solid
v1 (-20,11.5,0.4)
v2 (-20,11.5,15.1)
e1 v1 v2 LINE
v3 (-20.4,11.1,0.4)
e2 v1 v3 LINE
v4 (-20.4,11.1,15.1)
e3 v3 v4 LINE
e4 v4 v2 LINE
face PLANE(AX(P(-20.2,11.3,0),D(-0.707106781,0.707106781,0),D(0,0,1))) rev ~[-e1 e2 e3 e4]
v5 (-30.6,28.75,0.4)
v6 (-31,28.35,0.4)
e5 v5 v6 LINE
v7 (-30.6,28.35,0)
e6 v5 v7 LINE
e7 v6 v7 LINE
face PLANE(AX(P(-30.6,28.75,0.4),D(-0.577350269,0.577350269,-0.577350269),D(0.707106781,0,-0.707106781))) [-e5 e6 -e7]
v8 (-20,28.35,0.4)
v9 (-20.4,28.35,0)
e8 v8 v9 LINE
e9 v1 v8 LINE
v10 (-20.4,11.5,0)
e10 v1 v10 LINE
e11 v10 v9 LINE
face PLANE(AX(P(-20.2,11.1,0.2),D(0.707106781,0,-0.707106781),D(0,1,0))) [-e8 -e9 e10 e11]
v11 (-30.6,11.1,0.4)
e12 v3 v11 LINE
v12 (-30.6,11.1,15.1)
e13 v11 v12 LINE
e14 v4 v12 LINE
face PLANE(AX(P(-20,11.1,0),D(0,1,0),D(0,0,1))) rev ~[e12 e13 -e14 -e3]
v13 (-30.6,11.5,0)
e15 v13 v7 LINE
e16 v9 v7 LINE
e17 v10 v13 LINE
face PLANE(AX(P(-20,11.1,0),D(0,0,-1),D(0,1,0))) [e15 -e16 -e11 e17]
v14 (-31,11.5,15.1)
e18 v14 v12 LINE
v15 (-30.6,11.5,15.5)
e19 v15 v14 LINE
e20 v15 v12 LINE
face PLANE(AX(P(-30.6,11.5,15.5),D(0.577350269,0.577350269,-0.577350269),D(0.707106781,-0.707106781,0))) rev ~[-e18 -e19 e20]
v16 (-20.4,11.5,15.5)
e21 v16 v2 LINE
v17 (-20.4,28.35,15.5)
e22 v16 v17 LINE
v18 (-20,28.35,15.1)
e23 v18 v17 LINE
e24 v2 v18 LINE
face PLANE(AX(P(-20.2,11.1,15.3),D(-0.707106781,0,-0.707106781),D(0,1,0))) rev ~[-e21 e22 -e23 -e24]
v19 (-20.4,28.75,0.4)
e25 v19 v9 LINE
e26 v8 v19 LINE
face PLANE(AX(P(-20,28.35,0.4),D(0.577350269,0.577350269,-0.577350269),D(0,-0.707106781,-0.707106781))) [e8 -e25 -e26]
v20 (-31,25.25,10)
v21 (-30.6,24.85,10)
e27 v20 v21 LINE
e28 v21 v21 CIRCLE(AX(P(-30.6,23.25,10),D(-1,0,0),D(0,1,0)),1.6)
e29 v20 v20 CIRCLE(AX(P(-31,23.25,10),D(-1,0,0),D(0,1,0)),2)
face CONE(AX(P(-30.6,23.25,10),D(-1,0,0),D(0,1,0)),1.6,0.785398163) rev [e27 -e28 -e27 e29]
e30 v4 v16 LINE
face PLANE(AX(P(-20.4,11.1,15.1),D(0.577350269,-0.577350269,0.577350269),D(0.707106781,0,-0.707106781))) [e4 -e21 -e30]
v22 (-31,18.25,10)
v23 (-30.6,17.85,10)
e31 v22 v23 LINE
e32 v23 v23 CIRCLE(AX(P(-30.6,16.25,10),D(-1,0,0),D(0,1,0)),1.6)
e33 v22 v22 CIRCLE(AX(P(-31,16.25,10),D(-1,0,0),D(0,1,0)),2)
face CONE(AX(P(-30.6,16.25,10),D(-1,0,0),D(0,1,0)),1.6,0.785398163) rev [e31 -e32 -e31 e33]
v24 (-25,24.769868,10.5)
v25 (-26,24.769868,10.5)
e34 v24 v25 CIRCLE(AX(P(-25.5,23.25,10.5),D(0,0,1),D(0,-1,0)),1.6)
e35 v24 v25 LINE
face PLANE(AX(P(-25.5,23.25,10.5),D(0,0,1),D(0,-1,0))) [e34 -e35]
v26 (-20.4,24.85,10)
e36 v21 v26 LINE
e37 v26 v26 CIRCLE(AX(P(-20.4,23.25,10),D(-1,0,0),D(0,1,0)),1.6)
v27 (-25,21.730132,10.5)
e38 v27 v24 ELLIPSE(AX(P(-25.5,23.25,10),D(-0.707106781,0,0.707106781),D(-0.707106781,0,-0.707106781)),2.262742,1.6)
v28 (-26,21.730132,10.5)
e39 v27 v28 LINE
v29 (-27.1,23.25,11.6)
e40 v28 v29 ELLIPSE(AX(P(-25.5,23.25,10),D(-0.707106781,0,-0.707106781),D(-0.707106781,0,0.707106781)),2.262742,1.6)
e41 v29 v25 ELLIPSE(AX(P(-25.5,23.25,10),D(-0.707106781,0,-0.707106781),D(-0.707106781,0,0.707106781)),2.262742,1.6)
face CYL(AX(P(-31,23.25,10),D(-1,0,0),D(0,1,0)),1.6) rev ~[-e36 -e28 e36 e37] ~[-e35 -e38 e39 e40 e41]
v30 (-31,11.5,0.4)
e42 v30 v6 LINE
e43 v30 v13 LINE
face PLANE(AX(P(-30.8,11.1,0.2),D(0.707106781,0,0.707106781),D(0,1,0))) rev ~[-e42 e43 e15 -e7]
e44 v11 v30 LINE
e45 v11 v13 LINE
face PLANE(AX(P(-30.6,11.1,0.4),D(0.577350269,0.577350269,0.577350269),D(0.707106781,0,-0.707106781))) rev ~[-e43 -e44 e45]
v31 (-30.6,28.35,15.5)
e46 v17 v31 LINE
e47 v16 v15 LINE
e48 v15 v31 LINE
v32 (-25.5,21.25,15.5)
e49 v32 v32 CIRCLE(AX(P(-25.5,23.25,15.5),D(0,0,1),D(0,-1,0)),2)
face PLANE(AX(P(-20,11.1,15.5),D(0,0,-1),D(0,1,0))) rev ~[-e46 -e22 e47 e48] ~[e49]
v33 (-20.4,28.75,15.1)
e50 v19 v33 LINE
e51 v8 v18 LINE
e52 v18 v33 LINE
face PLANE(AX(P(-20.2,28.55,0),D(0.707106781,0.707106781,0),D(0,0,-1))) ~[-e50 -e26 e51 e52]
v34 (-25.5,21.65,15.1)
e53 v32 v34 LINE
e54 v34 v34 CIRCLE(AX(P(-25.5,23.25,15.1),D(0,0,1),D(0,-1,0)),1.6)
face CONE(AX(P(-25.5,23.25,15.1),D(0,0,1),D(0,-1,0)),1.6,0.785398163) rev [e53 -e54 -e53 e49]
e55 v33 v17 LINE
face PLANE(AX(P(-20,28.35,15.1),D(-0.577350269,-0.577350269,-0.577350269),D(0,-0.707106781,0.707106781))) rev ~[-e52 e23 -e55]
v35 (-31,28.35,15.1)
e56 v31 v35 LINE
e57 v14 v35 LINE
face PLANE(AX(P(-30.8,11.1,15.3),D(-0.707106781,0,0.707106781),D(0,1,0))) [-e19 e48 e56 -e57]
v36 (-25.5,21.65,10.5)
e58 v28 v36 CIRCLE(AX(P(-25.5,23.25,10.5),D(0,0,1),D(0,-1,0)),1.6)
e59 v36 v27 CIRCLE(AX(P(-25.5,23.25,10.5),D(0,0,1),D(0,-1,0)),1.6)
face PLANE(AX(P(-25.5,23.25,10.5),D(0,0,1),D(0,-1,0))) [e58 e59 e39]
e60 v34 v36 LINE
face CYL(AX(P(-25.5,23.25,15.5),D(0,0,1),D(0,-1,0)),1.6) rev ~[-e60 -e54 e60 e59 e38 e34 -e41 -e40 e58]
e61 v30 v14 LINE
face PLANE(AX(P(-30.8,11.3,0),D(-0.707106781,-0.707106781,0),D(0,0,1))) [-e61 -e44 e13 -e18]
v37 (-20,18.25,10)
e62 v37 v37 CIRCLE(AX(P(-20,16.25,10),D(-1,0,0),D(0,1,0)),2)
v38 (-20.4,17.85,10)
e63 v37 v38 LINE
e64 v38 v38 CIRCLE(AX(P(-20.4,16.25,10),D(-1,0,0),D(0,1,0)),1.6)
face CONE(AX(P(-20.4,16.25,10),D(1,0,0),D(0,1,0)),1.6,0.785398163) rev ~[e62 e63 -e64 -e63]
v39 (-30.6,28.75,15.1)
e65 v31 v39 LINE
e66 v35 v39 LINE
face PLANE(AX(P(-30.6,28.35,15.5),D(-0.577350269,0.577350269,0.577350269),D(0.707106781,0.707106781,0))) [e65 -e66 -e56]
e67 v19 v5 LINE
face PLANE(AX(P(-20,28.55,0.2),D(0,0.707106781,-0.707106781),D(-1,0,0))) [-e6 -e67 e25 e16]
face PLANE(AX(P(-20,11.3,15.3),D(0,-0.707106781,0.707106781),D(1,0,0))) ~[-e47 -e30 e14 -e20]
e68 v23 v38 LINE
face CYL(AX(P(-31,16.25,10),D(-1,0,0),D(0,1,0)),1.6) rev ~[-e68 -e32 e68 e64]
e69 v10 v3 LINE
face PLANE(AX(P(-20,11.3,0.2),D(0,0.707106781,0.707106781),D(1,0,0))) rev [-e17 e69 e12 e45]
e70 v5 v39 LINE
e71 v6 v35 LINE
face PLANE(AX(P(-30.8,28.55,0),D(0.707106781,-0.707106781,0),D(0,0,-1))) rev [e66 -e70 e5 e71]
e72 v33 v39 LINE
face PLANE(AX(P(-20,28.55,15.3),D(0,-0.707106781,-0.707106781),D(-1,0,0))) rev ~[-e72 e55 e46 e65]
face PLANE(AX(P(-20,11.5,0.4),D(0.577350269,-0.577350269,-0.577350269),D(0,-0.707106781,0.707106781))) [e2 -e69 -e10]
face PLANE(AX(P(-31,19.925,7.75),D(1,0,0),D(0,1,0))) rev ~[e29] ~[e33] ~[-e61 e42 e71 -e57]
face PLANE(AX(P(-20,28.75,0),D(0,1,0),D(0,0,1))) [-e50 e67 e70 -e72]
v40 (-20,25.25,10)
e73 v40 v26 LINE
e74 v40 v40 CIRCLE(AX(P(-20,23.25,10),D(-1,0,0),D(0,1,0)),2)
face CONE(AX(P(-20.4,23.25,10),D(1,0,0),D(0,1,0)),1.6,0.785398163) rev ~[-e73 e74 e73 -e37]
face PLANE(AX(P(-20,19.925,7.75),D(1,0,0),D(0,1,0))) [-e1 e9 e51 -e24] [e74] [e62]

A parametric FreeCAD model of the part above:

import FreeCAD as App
import Part
import Sketcher
from FreeCAD import Vector
Q = App.Units.Quantity


def edges_at(feature, points):
    """Names of the edges that pass closest to the given points."""
    edges = feature.Shape.Edges
    near = lambda p: min(range(len(edges)), key=lambda i: edges[i].distToShape(Part.Vertex(*p))[0])
    return sorted({f"Edge{near(p) + 1}" for p in points})

doc = App.newDocument("Part")
params = doc.addObject("Spreadsheet::Sheet", "Params")
for row, (alias, value) in enumerate([
    ("sketch1_height", "15.5 mm"),
    ("sketch1_width", "17.65 mm"),
    ("pad1_length", "11 mm"),
    ("sketch2_diameter", "3.2 mm"),
    ("sketch3_diameter", "3.2 mm"),
    ("pocket2_length", "5 mm"),
    ("chamfer_size", "0.4 mm"),
], start=1):
    params.set(f"A{row}", alias)
    params.set(f"B{row}", "=" + value)
    params.setAlias(f"B{row}", alias)

body = doc.addObject("PartDesign::Body", "Body")

# Sketch on YZ plane
sketch1 = body.newObject("Sketcher::SketchObject", "Sketch")
sketch1.AttachmentSupport = (doc.getObject("YZ_Plane"), [""])
sketch1.MapMode = "FlatFace"
sketch1.addGeometry([
    Part.LineSegment(Vector(0.1, 15.5, 0), Vector(0.1, 0, 0)),
    Part.LineSegment(Vector(0.1, 0, 0), Vector(17.75, 0, 0)),
    Part.LineSegment(Vector(17.75, 0, 0), Vector(17.75, 15.5, 0)),
    Part.LineSegment(Vector(17.75, 15.5, 0), Vector(0.1, 15.5, 0)),
], False)
sketch1.addConstraint([
    Sketcher.Constraint("Coincident", 0, 2, 1, 1),
    Sketcher.Constraint("Coincident", 1, 2, 2, 1),
    Sketcher.Constraint("Coincident", 2, 2, 3, 1),
    Sketcher.Constraint("Coincident", 3, 2, 0, 1),
    Sketcher.Constraint("Vertical", 0),
    Sketcher.Constraint("Horizontal", 1),
    Sketcher.Constraint("Vertical", 2),
    Sketcher.Constraint("Horizontal", 3),
    Sketcher.Constraint("PointOnObject", 0, 2, -1),
    Sketcher.Constraint("DistanceY", 0, 2, 0, 1, Q("15.5 mm")),
    Sketcher.Constraint("DistanceX", 1, 1, 1, 2, Q("17.65 mm")),
    Sketcher.Constraint("DistanceX", -1, 1, 0, 2, Q("0.1 mm")),
])
sketch1.setExpression("Constraints[9]", "Params.sketch1_height")
sketch1.setExpression("Constraints[10]", "Params.sketch1_width")
pad1 = body.newObject("PartDesign::Pad", "Pad")
pad1.Profile = sketch1
pad1.setExpression("Length", "Params.pad1_length")
pad1.Reversed = True

# Sketch on YZ plane
sketch2 = body.newObject("Sketcher::SketchObject", "Sketch001")
sketch2.AttachmentSupport = (doc.getObject("YZ_Plane"), [""])
sketch2.MapMode = "FlatFace"
sketch2.AttachmentOffset = App.Placement(Vector(0, 0, -11), App.Rotation())
sketch2.addGeometry([
    Part.Circle(Vector(5.25, 10, 0), Vector(0, 0, 1), 1.6),
    Part.Circle(Vector(12.25, 10, 0), Vector(0, 0, 1), 1.6),
], False)
sketch2.addConstraint([
    Sketcher.Constraint("Equal", 0, 1),
    Sketcher.Constraint("Horizontal", 0, 3, 1, 3),
    Sketcher.Constraint("Diameter", 0, Q("3.2 mm")),
    Sketcher.Constraint("DistanceY", -1, 1, 0, 3, Q("10 mm")),
    Sketcher.Constraint("DistanceX", 0, 3, 1, 3, Q("7 mm")),
    Sketcher.Constraint("DistanceX", -1, 1, 0, 3, Q("5.25 mm")),
])
sketch2.setExpression("Constraints[2]", "Params.sketch2_diameter")
pocket1 = body.newObject("PartDesign::Pocket", "Pocket")
pocket1.Profile = sketch2
pocket1.Type = "ThroughAll"
pocket1.Reversed = True

# Sketch on XY plane
sketch3 = body.newObject("Sketcher::SketchObject", "Sketch002")
sketch3.AttachmentSupport = (doc.getObject("XY_Plane"), [""])
sketch3.MapMode = "FlatFace"
sketch3.AttachmentOffset = App.Placement(Vector(0, 0, 15.5), App.Rotation())
sketch3.addGeometry(Part.Circle(Vector(-5.5, 12.25, 0), Vector(0, 0, 1), 1.6), False)
sketch3.addConstraint([
    Sketcher.Constraint("Diameter", 0, Q("3.2 mm")),
    Sketcher.Constraint("DistanceX", 0, 3, -1, 1, Q("5.5 mm")),
    Sketcher.Constraint("DistanceY", -1, 1, 0, 3, Q("12.25 mm")),
])
sketch3.setExpression("Constraints[0]", "Params.sketch3_diameter")
pocket2 = body.newObject("PartDesign::Pocket", "Pocket001")
pocket2.Profile = sketch3
pocket2.setExpression("Length", "Params.pocket2_length")
doc.recompute()

chamfer = body.newObject("PartDesign::Chamfer", "Chamfer")
chamfer.Base = (pocket2, edges_at(pocket2, [
    (-11, 8.925, 0),
    (-11, 0.1, 7.75),
    (-11, 17.75, 7.75),
    (-11, 8.925, 15.5),
    (-11, 10.65, 10),
    (-11, 3.65, 10),
    (-5.5, 17.75, 0),
    (-5.5, 17.75, 15.5),
    (0, 17.75, 7.75),
    (-5.5, 0.1, 0),
    (0, 8.925, 0),
    (0, 8.925, 15.5),
    (-5.5, 0.1, 15.5),
    (-5.5, 13.85, 15.5),
    (0, 0.1, 7.75),
    (0, 10.65, 10),
    (0, 3.65, 10),
]))
chamfer.setExpression("Size", "Params.chamfer_size")
body2 = doc.addObject("PartDesign::Body", "Body001")
doc.recompute()

body.Placement = App.Placement(Vector(-20, 11, 0), App.Rotation(Vector(0, 0, 1), 0))
boolean = body2.newObject("PartDesign::Boolean", "Boolean")
boolean.Type = "Fuse"
boolean.addObjects([body])

doc.recompute()
